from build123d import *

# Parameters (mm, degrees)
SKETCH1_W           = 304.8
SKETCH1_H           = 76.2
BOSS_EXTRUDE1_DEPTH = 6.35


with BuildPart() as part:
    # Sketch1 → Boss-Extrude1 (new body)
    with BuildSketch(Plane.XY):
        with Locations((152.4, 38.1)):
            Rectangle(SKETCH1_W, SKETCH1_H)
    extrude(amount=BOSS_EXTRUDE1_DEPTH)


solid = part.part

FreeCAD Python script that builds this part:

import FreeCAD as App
import Part
import Sketcher

V = App.Vector
Q = App.Units.Quantity


def add_polygon(sketch, points):
    """Adds a closed chain of lines whose ends are joined by coincident constraints."""
    first, n = sketch.GeometryCount, len(points)
    for a, b in zip(points, points[1:] + points[:1]):
        sketch.addGeometry(Part.LineSegment(App.Vector(*a, 0), App.Vector(*b, 0)), False)
    for i in range(n):
        sketch.addConstraint(Sketcher.Constraint("Coincident", first + i, 2, first + (i + 1) % n, 1))

doc = App.newDocument("Part")
body = doc.addObject("PartDesign::Body", "Body")

# Sketch on XY plane
sketch1 = body.newObject("Sketcher::SketchObject", "Sketch")
sketch1.AttachmentSupport = (doc.getObject("XY_Plane"), [""])
sketch1.MapMode = "FlatFace"
add_polygon(sketch1, [(0, 76), (0, 0), (305, 0), (305, 76)])  # lines 0-3
sketch1.addConstraint(Sketcher.Constraint("Vertical", 0))
sketch1.addConstraint(Sketcher.Constraint("Horizontal", 1))
sketch1.addConstraint(Sketcher.Constraint("Vertical", 2))
sketch1.addConstraint(Sketcher.Constraint("Horizontal", 3))
sketch1.addConstraint(Sketcher.Constraint("Coincident", 0, 2, -1, 1))
sketch1.addConstraint(Sketcher.Constraint("DistanceX", 1, 1, 1, 2, Q("12 in")))
sketch1.addConstraint(Sketcher.Constraint("DistanceY", 0, 2, 0, 1, Q("3 in")))
pad1 = body.newObject("PartDesign::Pad", "Pad")
pad1.Profile = sketch1
pad1.Length = Q("0.25 in")

doc.recompute()
